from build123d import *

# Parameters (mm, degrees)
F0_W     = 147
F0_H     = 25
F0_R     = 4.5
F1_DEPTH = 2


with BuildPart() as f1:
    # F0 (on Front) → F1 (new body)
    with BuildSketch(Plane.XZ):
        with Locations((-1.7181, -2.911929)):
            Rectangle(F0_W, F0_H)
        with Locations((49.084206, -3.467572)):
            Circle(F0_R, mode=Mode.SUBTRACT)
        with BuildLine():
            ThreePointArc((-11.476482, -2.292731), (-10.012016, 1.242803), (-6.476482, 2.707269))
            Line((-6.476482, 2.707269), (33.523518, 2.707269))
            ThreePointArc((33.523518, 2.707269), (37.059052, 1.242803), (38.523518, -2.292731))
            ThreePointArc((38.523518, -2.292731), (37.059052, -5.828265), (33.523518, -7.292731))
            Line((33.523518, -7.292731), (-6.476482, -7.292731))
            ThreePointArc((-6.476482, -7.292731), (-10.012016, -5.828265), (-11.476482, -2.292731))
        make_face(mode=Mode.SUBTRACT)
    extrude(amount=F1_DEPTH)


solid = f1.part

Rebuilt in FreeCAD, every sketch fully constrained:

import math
import FreeCAD as App
import Part
import Sketcher
from FreeCAD import Vector
Q = App.Units.Quantity


def add_polygon(sketch, points):
    """Adds a closed chain of lines whose ends are joined by coincident constraints."""
    first, n = sketch.GeometryCount, len(points)
    for a, b in zip(points, points[1:] + points[:1]):
        sketch.addGeometry(Part.LineSegment(App.Vector(*a, 0), App.Vector(*b, 0)), False)
    for i in range(n):
        sketch.addConstraint(Sketcher.Constraint("Coincident", first + i, 2, first + (i + 1) % n, 1))

doc = App.newDocument("Part")
body = doc.addObject("PartDesign::Body", "Body")

sketch1 = body.newObject("Sketcher::SketchObject", "Sketch")
sketch1.AttachmentSupport = (doc.getObject("XZ_Plane"), [""])
sketch1.MapMode = "FlatFace"
add_polygon(sketch1, [(-75.2181, 9.588071), (-75.2181, -15.411929), (71.7819, -15.411929), (71.7819, 9.588071)])
sketch1.addGeometry(Part.Circle(Vector(49.084206, -3.467572, 0), Vector(0, 0, 1), 4.5), False)
sketch1.addGeometry(Part.ArcOfCircle(Part.Circle(Vector(-6.476482, -2.292731, 0), Vector(0, 0, 1), 5), math.radians(179.999996), math.radians(270.000004)), False)
sketch1.addGeometry(Part.ArcOfCircle(Part.Circle(Vector(-6.476482, -2.292731, 0), Vector(0, 0, 1), 5), math.radians(89.999996), math.radians(180.000004)), False)
sketch1.addGeometry(Part.LineSegment(Vector(-6.476482, 2.707269, 0), Vector(33.523518, 2.707269, 0)), False)
sketch1.addGeometry(Part.ArcOfCircle(Part.Circle(Vector(33.523518, -2.292731, 0), Vector(0, 0, 1), 5), math.radians(-0.000004), math.radians(90.000004)), False)
sketch1.addGeometry(Part.ArcOfCircle(Part.Circle(Vector(33.523518, -2.292731, 0), Vector(0, 0, 1), 5), math.radians(-90.000004), math.radians(0.000004)), False)
sketch1.addGeometry(Part.LineSegment(Vector(33.523518, -7.292731, 0), Vector(-6.476482, -7.292731, 0)), False)
sketch1.addConstraint([
    Sketcher.Constraint("Tangent", 5, 1, 6, 2),
    Sketcher.Constraint("Tangent", 6, 1, 7, 1),
    Sketcher.Constraint("Tangent", 7, 2, 8, 2),
    Sketcher.Constraint("Tangent", 8, 1, 9, 2),
    Sketcher.Constraint("Tangent", 9, 1, 10, 1),
    Sketcher.Constraint("Tangent", 10, 2, 5, 2),
    Sketcher.Constraint("Vertical", 0),
    Sketcher.Constraint("Horizontal", 1),
    Sketcher.Constraint("Vertical", 2),
    Sketcher.Constraint("Horizontal", 3),
    Sketcher.Constraint("Horizontal", 7),
    Sketcher.Constraint("Horizontal", 10),
    Sketcher.Constraint("Equal", 5, 6),
    Sketcher.Constraint("Equal", 6, 8),
    Sketcher.Constraint("Horizontal", 9, 3, 5, 1),
    Sketcher.Constraint("Horizontal", 5, 1, 8, 1),
    Sketcher.Constraint("Diameter", 4, Q("9 mm")),
    Sketcher.Constraint("Radius", 5, Q("5 mm")),
    Sketcher.Constraint("DistanceX", 1, 1, 1, 2, Q("147 mm")),
    Sketcher.Constraint("DistanceX", 7, 1, 7, 2, Q("40 mm")),
    Sketcher.Constraint("DistanceY", 0, 2, 0, 1, Q("25 mm")),
    Sketcher.Constraint("DistanceX", 0, 2, -1, 1, Q("75.2181 mm")),
    Sketcher.Constraint("DistanceY", 0, 2, 6, 3, Q("13.119198 mm")),
    Sketcher.Constraint("DistanceY", 5, 3, -1, 1, Q("2.292731 mm")),
    Sketcher.Constraint("DistanceX", -1, 1, 8, 3, Q("33.523518 mm")),
    Sketcher.Constraint("DistanceX", 5, 3, 4, 3, Q("55.560688 mm")),
    Sketcher.Constraint("DistanceY", 4, 3, 5, 3, Q("1.174841 mm")),
])
pad1 = body.newObject("PartDesign::Pad", "Pad")
pad1.Profile = sketch1
pad1.Length = 2

doc.recompute()
